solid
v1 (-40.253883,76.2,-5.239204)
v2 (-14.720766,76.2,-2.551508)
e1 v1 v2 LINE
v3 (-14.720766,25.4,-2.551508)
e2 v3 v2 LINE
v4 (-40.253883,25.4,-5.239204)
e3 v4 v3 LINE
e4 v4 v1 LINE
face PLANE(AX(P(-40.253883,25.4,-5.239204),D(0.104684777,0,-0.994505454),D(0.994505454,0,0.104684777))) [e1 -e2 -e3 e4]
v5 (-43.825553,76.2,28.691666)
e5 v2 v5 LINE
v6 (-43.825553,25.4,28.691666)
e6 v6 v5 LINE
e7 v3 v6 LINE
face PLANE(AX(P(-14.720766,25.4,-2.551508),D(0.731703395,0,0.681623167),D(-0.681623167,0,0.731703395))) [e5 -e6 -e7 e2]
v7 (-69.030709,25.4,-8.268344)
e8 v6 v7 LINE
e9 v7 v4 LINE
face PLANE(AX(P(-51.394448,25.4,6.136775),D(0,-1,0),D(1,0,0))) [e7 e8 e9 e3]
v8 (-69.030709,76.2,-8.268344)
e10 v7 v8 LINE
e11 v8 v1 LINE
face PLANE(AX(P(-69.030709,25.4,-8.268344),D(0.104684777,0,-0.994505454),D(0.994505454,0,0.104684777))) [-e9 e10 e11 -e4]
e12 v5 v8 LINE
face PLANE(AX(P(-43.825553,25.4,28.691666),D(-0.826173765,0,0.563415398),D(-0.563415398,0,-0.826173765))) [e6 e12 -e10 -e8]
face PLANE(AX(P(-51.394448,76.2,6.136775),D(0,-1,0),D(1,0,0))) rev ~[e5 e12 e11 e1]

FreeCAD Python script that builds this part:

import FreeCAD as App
import Part
import Sketcher

V = App.Vector
Q = App.Units.Quantity

doc = App.newDocument("Part")
body = doc.addObject("PartDesign::Body", "Body")

# Sketch on XZ plane
sketch1 = body.newObject("Sketcher::SketchObject", "Sketch")
sketch1.AttachmentSupport = (doc.getObject("XZ_Plane"), [""])
sketch1.MapMode = "FlatFace"
sketch1.AttachmentOffset = App.Placement(V(0, 0, -1 * 25.4), App.Rotation())
sketch1.addGeometry([
    Part.LineSegment(V(-44, 29, 0), V(-69, -8, 0)),
    Part.LineSegment(V(-69, -8, 0), V(-40, -5, 0)),
    Part.LineSegment(V(-40, -5, 0), V(-15, -3, 0)),
    Part.LineSegment(V(-15, -3, 0), V(-44, 29, 0)),
], False)
sketch1.addConstraint([
    Sketcher.Constraint("Coincident", 0, 2, 1, 1),
    Sketcher.Constraint("Coincident", 1, 2, 2, 1),
    Sketcher.Constraint("Coincident", 2, 2, 3, 1),
    Sketcher.Constraint("Coincident", 3, 2, 0, 1),
    Sketcher.Constraint("Parallel", 1, 2),
    Sketcher.Constraint("DistanceX", 0, 2, -1, 1, Q("69.030709 mm")),
    Sketcher.Constraint("DistanceY", 0, 2, 1, 2, Q("3.029139 mm")),
    Sketcher.Constraint("DistanceX", 3, 2, 1, 2, Q("3.57167 mm")),
    Sketcher.Constraint("DistanceY", 1, 2, 3, 2, Q("33.93087 mm")),
    Sketcher.Constraint("Distance", 0, Q("44.736363 mm")),
    Sketcher.Constraint("Distance", 2, Q("25.674185 mm")),
    Sketcher.Constraint("DistanceY", 0, 2, -1, 1, Q("8.268344 mm")),
])
pad1 = body.newObject("PartDesign::Pad", "Pad")
pad1.Profile = sketch1
pad1.Length = Q("2 in")
pad1.Reversed = True

doc.recompute()
